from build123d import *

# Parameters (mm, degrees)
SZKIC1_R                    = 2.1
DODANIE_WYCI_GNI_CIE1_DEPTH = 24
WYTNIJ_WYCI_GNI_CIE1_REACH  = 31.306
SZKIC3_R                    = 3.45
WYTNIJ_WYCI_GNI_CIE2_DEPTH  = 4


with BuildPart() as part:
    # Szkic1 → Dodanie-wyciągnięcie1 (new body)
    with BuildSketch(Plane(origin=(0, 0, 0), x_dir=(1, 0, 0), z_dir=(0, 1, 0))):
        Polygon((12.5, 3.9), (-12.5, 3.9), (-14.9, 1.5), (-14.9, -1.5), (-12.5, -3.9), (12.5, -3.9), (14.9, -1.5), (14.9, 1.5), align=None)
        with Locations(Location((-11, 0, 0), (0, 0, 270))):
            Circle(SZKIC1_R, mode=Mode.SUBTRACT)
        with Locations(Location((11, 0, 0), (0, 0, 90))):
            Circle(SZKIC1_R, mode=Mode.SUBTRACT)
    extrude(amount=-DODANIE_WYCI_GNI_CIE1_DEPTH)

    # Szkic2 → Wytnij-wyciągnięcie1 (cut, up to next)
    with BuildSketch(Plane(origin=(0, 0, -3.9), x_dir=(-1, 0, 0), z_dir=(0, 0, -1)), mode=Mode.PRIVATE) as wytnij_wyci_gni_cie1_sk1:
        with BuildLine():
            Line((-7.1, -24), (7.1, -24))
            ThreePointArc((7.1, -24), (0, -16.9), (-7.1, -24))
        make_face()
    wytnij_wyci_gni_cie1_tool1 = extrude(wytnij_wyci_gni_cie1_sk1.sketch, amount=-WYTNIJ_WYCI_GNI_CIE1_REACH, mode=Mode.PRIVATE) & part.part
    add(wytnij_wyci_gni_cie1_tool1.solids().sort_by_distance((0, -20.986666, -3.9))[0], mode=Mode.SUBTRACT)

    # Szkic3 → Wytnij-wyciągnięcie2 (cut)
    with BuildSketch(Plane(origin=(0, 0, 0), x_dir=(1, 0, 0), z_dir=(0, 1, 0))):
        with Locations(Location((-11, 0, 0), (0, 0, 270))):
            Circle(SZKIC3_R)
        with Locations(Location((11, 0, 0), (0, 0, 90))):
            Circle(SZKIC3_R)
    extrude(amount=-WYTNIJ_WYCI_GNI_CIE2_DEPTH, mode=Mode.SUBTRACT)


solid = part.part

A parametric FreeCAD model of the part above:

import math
import FreeCAD as App
import Part
import Sketcher

V = App.Vector
Q = App.Units.Quantity

doc = App.newDocument("Part")
body = doc.addObject("PartDesign::Body", "Body")

sketch1 = body.newObject("Sketcher::SketchObject", "Sketch")
sketch1.AttachmentSupport = (doc.getObject("XZ_Plane"), [""])
sketch1.MapMode = "FlatFace"
sketch1.addGeometry([
    Part.LineSegment(V(12.5, -3.9, 0), V(-12.5, -3.9, 0)),
    Part.LineSegment(V(-12.5, -3.9, 0), V(-14.9, -1.5, 0)),
    Part.LineSegment(V(-14.9, -1.5, 0), V(-14.9, 1.5, 0)),
    Part.LineSegment(V(-14.9, 1.5, 0), V(-12.5, 3.9, 0)),
    Part.LineSegment(V(-12.5, 3.9, 0), V(12.5, 3.9, 0)),
    Part.LineSegment(V(12.5, 3.9, 0), V(14.9, 1.5, 0)),
    Part.LineSegment(V(14.9, 1.5, 0), V(14.9, -1.5, 0)),
    Part.LineSegment(V(14.9, -1.5, 0), V(12.5, -3.9, 0)),
    Part.Circle(V(-11, 0, 0), V(0, 0, 1), 2.1),
    Part.Circle(V(11, 0, 0), V(0, 0, 1), 2.1),
], False)
sketch1.addConstraint([
    Sketcher.Constraint("Coincident", 0, 2, 1, 1),
    Sketcher.Constraint("Coincident", 1, 2, 2, 1),
    Sketcher.Constraint("Coincident", 2, 2, 3, 1),
    Sketcher.Constraint("Coincident", 3, 2, 4, 1),
    Sketcher.Constraint("Coincident", 4, 2, 5, 1),
    Sketcher.Constraint("Coincident", 5, 2, 6, 1),
    Sketcher.Constraint("Coincident", 6, 2, 7, 1),
    Sketcher.Constraint("Coincident", 7, 2, 0, 1),
    Sketcher.Constraint("Horizontal", 0),
    Sketcher.Constraint("Vertical", 2),
    Sketcher.Constraint("Horizontal", 4),
    Sketcher.Constraint("Vertical", 6),
    Sketcher.Constraint("Equal", 8, 9),
    Sketcher.Constraint("Symmetric", 8, 3, 9, 3, -1, 1),
    Sketcher.Constraint("Symmetric", 0, 2, 4, 2, -1, 1),
    Sketcher.Constraint("Symmetric", 1, 2, 5, 2, -1, 1),
    Sketcher.Constraint("PointOnObject", 8, 3, -1),
    Sketcher.Constraint("Perpendicular", 1, 3),
    Sketcher.Constraint("Perpendicular", 5, 7),
    Sketcher.Constraint("Horizontal", 2, 2, 5, 2),
    Sketcher.Constraint("Horizontal", 1, 2, 6, 2),
    Sketcher.Constraint("Vertical", 0, 2, 3, 2),
    Sketcher.Constraint("Diameter", 8, Q("4.2 mm")),
    Sketcher.Constraint("DistanceX", 0, 2, 0, 1, Q("25 mm")),
    Sketcher.Constraint("DistanceY", 2, 1, 2, 2, Q("3 mm")),
    Sketcher.Constraint("DistanceX", 8, 3, -1, 1, Q("11 mm")),
    Sketcher.Constraint("DistanceY", 0, 2, -1, 1, Q("3.9 mm")),
])
pad1 = body.newObject("PartDesign::Pad", "Pad")
pad1.Profile = sketch1
pad1.Length = 24

sketch2 = body.newObject("Sketcher::SketchObject", "Sketch001")
sketch2.AttachmentSupport = (doc.getObject("XY_Plane"), [""])
sketch2.MapMode = "FlatFace"
sketch2.AttachmentOffset = App.Placement(V(0, 0, -3.9), App.Rotation())
sketch2.addGeometry([
    Part.LineSegment(V(7.1, -24, 0), V(-7.1, -24, 0)),
    Part.ArcOfCircle(Part.Circle(V(0, -24, 0), V(0, 0, 1), 7.1), math.radians(0), math.radians(180)),
], False)
sketch2.addConstraint([
    Sketcher.Constraint("Coincident", 0, 1, 1, 1),
    Sketcher.Constraint("Coincident", 1, 2, 0, 2),
    Sketcher.Constraint("Horizontal", 0),
    Sketcher.Constraint("PointOnObject", 1, 3, -2),
    Sketcher.Constraint("Horizontal", 1, 3, 0, 1),
    Sketcher.Constraint("Radius", 1, Q("7.1 mm")),
    Sketcher.Constraint("DistanceY", 1, 3, -1, 1, Q("24 mm")),
])
pocket1 = body.newObject("PartDesign::Pocket", "Pocket")
pocket1.Profile = sketch2
pocket1.Type = "UpToFirst"
pocket1.Reversed = True

sketch3 = body.newObject("Sketcher::SketchObject", "Sketch002")
sketch3.AttachmentSupport = (doc.getObject("XZ_Plane"), [""])
sketch3.MapMode = "FlatFace"
sketch3.addGeometry([
    Part.Circle(V(-11, 0, 0), V(0, 0, 1), 3.45),
    Part.Circle(V(11, 0, 0), V(0, 0, 1), 3.45),
], False)
sketch3.addConstraint([
    Sketcher.Constraint("Equal", 0, 1),
    Sketcher.Constraint("Symmetric", 0, 3, 1, 3, -1, 1),
    Sketcher.Constraint("PointOnObject", 0, 3, -1),
    Sketcher.Constraint("Diameter", 0, Q("6.9 mm")),
    Sketcher.Constraint("DistanceX", 0, 3, -1, 1, Q("11 mm")),
])
pocket2 = body.newObject("PartDesign::Pocket", "Pocket001")
pocket2.Profile = sketch3
pocket2.Length = 4
pocket2.Reversed = True

doc.recompute()
